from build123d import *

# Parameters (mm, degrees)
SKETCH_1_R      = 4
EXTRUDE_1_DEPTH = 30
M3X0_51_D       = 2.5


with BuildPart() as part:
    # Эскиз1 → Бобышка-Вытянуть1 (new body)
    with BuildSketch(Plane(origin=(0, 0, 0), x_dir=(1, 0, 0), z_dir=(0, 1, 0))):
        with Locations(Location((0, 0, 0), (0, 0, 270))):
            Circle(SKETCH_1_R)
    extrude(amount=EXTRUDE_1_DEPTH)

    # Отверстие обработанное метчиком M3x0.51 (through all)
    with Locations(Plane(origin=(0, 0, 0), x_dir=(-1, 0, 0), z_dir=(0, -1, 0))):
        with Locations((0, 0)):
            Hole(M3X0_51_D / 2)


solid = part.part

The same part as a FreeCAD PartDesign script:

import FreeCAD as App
import Part
import Sketcher
from FreeCAD import Vector
Q = App.Units.Quantity

doc = App.newDocument("Part")
params = doc.addObject("Spreadsheet::Sheet", "Params")
for row, (alias, value) in enumerate([
    ("sketch1_diameter", "8 mm"),
    ("pad1_length", "30 mm"),
    ("sketch2_diameter", "2.5 mm"),
    ("hole_diameter", "2.5 mm"),
], start=1):
    params.set(f"A{row}", alias)
    params.set(f"B{row}", "=" + value)
    params.setAlias(f"B{row}", alias)

body = doc.addObject("PartDesign::Body", "Body")

# Sketch on XZ plane
sketch1 = body.newObject("Sketcher::SketchObject", "Sketch")
sketch1.AttachmentSupport = (doc.getObject("XZ_Plane"), [""])
sketch1.MapMode = "FlatFace"
sketch1.addGeometry(Part.Circle(Vector(0, 0, 0), Vector(0, 0, 1), 4), False)
sketch1.addConstraint([
    Sketcher.Constraint("Coincident", 0, 3, -1, 1),
    Sketcher.Constraint("Diameter", 0, Q("8 mm")),
])
sketch1.setExpression("Constraints[1]", "Params.sketch1_diameter")
pad1 = body.newObject("PartDesign::Pad", "Pad")
pad1.Profile = sketch1
pad1.setExpression("Length", "Params.pad1_length")
pad1.Reversed = True

# Sketch on XZ plane
sketch2 = body.newObject("Sketcher::SketchObject", "Sketch001")
sketch2.AttachmentSupport = (doc.getObject("XZ_Plane"), [""])
sketch2.MapMode = "FlatFace"
sketch2.addGeometry(Part.Circle(Vector(0, 0, 0), Vector(0, 0, 1), 1.2), False)
sketch2.addConstraint([
    Sketcher.Constraint("Coincident", 0, 3, -1, 1),
    Sketcher.Constraint("Diameter", 0, Q("2.5 mm")),
])
sketch2.setExpression("Constraints[1]", "Params.sketch2_diameter")
doc.recompute()
hole = body.newObject("PartDesign::Hole", "Hole")
hole.Profile = sketch2
hole.ThreadType = "None"
hole.setExpression("Diameter", "Params.hole_diameter")
hole.DepthType = "ThroughAll"

doc.recompute()
